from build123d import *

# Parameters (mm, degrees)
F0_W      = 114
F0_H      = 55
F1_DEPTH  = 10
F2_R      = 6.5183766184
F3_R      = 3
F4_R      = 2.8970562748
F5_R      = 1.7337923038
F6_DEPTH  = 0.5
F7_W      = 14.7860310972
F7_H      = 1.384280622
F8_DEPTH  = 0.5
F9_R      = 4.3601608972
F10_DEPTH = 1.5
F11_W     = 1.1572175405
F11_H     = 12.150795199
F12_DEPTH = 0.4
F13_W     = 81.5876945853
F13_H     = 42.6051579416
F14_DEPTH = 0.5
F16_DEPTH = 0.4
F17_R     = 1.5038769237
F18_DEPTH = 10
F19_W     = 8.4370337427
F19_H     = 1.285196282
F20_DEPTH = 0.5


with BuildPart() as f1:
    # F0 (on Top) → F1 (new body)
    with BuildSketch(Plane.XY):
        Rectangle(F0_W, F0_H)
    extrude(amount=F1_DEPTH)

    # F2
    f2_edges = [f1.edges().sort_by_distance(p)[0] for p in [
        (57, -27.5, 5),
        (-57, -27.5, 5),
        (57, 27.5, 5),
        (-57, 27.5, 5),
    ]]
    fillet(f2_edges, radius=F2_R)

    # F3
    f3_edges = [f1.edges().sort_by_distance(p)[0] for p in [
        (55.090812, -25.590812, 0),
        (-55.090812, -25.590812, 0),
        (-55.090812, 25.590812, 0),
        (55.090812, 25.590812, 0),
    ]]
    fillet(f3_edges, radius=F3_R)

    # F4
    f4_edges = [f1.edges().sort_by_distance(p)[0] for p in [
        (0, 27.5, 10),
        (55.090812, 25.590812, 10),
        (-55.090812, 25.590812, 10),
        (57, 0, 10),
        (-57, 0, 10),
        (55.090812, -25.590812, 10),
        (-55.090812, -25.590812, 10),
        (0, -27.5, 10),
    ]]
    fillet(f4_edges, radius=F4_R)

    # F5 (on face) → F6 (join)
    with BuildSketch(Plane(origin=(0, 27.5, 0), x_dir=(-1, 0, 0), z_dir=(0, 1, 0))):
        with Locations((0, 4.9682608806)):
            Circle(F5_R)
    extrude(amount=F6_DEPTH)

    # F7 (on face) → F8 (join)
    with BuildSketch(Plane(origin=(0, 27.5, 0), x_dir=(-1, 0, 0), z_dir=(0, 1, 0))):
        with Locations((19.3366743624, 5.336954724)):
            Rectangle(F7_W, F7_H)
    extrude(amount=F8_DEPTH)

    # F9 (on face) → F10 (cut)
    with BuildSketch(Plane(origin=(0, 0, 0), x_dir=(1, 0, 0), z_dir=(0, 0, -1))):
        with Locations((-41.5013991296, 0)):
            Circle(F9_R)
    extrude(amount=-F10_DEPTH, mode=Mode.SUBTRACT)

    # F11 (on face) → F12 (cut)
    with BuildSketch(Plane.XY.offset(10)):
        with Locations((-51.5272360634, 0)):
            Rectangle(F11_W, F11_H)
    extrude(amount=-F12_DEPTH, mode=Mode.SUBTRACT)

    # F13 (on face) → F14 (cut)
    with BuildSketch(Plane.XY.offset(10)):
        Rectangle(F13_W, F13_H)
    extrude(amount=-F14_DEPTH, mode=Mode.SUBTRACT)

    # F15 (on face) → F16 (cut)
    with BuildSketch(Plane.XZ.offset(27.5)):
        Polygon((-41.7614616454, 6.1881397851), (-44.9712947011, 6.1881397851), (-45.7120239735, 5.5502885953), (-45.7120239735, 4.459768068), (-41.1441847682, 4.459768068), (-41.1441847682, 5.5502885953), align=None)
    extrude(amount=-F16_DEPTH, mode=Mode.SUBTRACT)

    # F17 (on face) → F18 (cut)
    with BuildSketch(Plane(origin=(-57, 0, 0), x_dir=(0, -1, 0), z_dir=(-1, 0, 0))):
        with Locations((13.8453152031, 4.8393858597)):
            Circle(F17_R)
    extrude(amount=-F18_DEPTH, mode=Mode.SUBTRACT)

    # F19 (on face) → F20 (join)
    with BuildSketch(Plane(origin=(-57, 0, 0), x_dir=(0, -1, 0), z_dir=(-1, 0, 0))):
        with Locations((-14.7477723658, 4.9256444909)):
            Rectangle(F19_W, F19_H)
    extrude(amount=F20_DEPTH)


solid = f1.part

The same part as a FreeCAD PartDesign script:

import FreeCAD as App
import Part
import Sketcher

V = App.Vector
Q = App.Units.Quantity


def edges_at(feature, points):
    """Names of the edges that pass closest to the given points."""
    edges = feature.Shape.Edges
    near = lambda p: min(range(len(edges)), key=lambda i: edges[i].distToShape(Part.Vertex(*p))[0])
    return sorted({f"Edge{near(p) + 1}" for p in points})


def add_polygon(sketch, points):
    """Adds a closed chain of lines whose ends are joined by coincident constraints."""
    first, n = sketch.GeometryCount, len(points)
    for a, b in zip(points, points[1:] + points[:1]):
        sketch.addGeometry(Part.LineSegment(App.Vector(*a, 0), App.Vector(*b, 0)), False)
    for i in range(n):
        sketch.addConstraint(Sketcher.Constraint("Coincident", first + i, 2, first + (i + 1) % n, 1))

doc = App.newDocument("Part")
body = doc.addObject("PartDesign::Body", "Body")

sketch1 = body.newObject("Sketcher::SketchObject", "Sketch")
sketch1.AttachmentSupport = (doc.getObject("XY_Plane"), [""])
sketch1.MapMode = "FlatFace"
add_polygon(sketch1, [(-57, 28), (-57, -28), (57, -28), (57, 28)])
sketch1.addConstraint([
    Sketcher.Constraint("Vertical", 0),
    Sketcher.Constraint("Horizontal", 1),
    Sketcher.Constraint("Vertical", 2),
    Sketcher.Constraint("Horizontal", 3),
    Sketcher.Constraint("Symmetric", 0, 2, 2, 2, -1, 1),
    Sketcher.Constraint("DistanceX", 1, 1, 1, 2, Q("114 mm")),
    Sketcher.Constraint("DistanceY", 0, 2, 0, 1, Q("55 mm")),
])
pad1 = body.newObject("PartDesign::Pad", "Pad")
pad1.Profile = sketch1
pad1.Length = 10
doc.recompute()

fillet = body.newObject("PartDesign::Fillet", "Fillet")
fillet.Base = (pad1, edges_at(pad1, [
    (57, -27.5, 5),
    (-57, -27.5, 5),
    (57, 27.5, 5),
    (-57, 27.5, 5),
]))
fillet.Radius = 6.518377
doc.recompute()

fillet2 = body.newObject("PartDesign::Fillet", "Fillet001")
fillet2.Base = (fillet, edges_at(fillet, [
    (55.091, -25.591, 0),
    (-55.091, -25.591, 0),
    (-55.091, 25.591, 0),
    (55.091, 25.591, 0),
]))
fillet2.Radius = 3
doc.recompute()

fillet3 = body.newObject("PartDesign::Fillet", "Fillet002")
fillet3.Base = (fillet2, edges_at(fillet2, [
    (0, 27.5, 10),
    (55.091, 25.591, 10),
    (-55.091, 25.591, 10),
    (57, 0, 10),
    (-57, 0, 10),
    (55.091, -25.591, 10),
    (-55.091, -25.591, 10),
    (0, -27.5, 10),
]))
fillet3.Radius = 2.897056

sketch2 = body.newObject("Sketcher::SketchObject", "Sketch001")
sketch2.AttachmentSupport = (doc.getObject("XZ_Plane"), [""])
sketch2.MapMode = "FlatFace"
sketch2.AttachmentOffset = App.Placement(V(0, 0, -27.5), App.Rotation())
sketch2.addGeometry(Part.Circle(V(0, 5, 0), V(0, 0, 1), 1.7), False)
sketch2.addConstraint([
    Sketcher.Constraint("PointOnObject", 0, 3, -2),
    Sketcher.Constraint("Diameter", 0, Q("3.467585 mm")),
    Sketcher.Constraint("DistanceY", -1, 1, 0, 3, Q("4.968261 mm")),
])
pad2 = body.newObject("PartDesign::Pad", "Pad001")
pad2.Profile = sketch2
pad2.Length = 0.5
pad2.Reversed = True

sketch3 = body.newObject("Sketcher::SketchObject", "Sketch002")
sketch3.AttachmentSupport = (doc.getObject("XZ_Plane"), [""])
sketch3.MapMode = "FlatFace"
sketch3.AttachmentOffset = App.Placement(V(0, 0, -27.5), App.Rotation())
add_polygon(sketch3, [(-11.9, 6), (-11.9, 4.6), (-26.7, 4.6), (-26.7, 6)])
sketch3.addConstraint([
    Sketcher.Constraint("Vertical", 0),
    Sketcher.Constraint("Horizontal", 1),
    Sketcher.Constraint("Vertical", 2),
    Sketcher.Constraint("Horizontal", 3),
    Sketcher.Constraint("DistanceX", 1, 2, 1, 1, Q("14.786031 mm")),
    Sketcher.Constraint("DistanceY", 0, 2, 0, 1, Q("1.384281 mm")),
    Sketcher.Constraint("DistanceX", 0, 2, -1, 1, Q("11.943659 mm")),
    Sketcher.Constraint("DistanceY", -1, 1, 0, 2, Q("4.644814 mm")),
])
pad3 = body.newObject("PartDesign::Pad", "Pad002")
pad3.Profile = sketch3
pad3.Length = 0.5
pad3.Reversed = True

sketch4 = body.newObject("Sketcher::SketchObject", "Sketch003")
sketch4.AttachmentSupport = (doc.getObject("XY_Plane"), [""])
sketch4.MapMode = "FlatFace"
sketch4.addGeometry(Part.Circle(V(-41.5, 0, 0), V(0, 0, 1), 4.4), False)
sketch4.addConstraint([
    Sketcher.Constraint("PointOnObject", 0, 3, -1),
    Sketcher.Constraint("Diameter", 0, Q("8.720322 mm")),
    Sketcher.Constraint("DistanceX", 0, 3, -1, 1, Q("41.501399 mm")),
])
pocket1 = body.newObject("PartDesign::Pocket", "Pocket")
pocket1.Profile = sketch4
pocket1.Length = 1.5
pocket1.Reversed = True

sketch5 = body.newObject("Sketcher::SketchObject", "Sketch004")
sketch5.AttachmentSupport = (doc.getObject("XY_Plane"), [""])
sketch5.MapMode = "FlatFace"
sketch5.AttachmentOffset = App.Placement(V(0, 0, 10), App.Rotation())
add_polygon(sketch5, [(-52.1, 6.1), (-52.1, -6.1), (-50.9, -6.1), (-50.9, 6.1)])
sketch5.addConstraint([
    Sketcher.Constraint("Vertical", 0),
    Sketcher.Constraint("Horizontal", 1),
    Sketcher.Constraint("Vertical", 2),
    Sketcher.Constraint("Horizontal", 3),
    Sketcher.Constraint("DistanceX", 1, 1, 1, 2, Q("1.157218 mm")),
    Sketcher.Constraint("DistanceY", 0, 2, 0, 1, Q("12.150795 mm")),
    Sketcher.Constraint("DistanceX", 0, 2, -1, 1, Q("52.105845 mm")),
    Sketcher.Constraint("DistanceY", 0, 2, -1, 1, Q("6.075398 mm")),
])
pocket2 = body.newObject("PartDesign::Pocket", "Pocket001")
pocket2.Profile = sketch5
pocket2.Length = 0.4

sketch6 = body.newObject("Sketcher::SketchObject", "Sketch005")
sketch6.AttachmentSupport = (doc.getObject("XY_Plane"), [""])
sketch6.MapMode = "FlatFace"
sketch6.AttachmentOffset = App.Placement(V(0, 0, 10), App.Rotation())
add_polygon(sketch6, [(-41, 21), (-41, -21), (41, -21), (41, 21)])
sketch6.addConstraint([
    Sketcher.Constraint("Vertical", 0),
    Sketcher.Constraint("Horizontal", 1),
    Sketcher.Constraint("Vertical", 2),
    Sketcher.Constraint("Horizontal", 3),
    Sketcher.Constraint("Symmetric", 0, 2, 2, 2, -1, 1),
    Sketcher.Constraint("DistanceX", 1, 1, 1, 2, Q("81.587695 mm")),
    Sketcher.Constraint("DistanceY", 0, 2, 0, 1, Q("42.605158 mm")),
])
pocket3 = body.newObject("PartDesign::Pocket", "Pocket002")
pocket3.Profile = sketch6
pocket3.Length = 0.5

sketch7 = body.newObject("Sketcher::SketchObject", "Sketch006")
sketch7.AttachmentSupport = (doc.getObject("XZ_Plane"), [""])
sketch7.MapMode = "FlatFace"
sketch7.AttachmentOffset = App.Placement(V(0, 0, 27.5), App.Rotation())
add_polygon(sketch7, [(-41.8, 6.2), (-45, 6.2), (-45.7, 5.6), (-45.7, 4.5), (-41.1, 4.5), (-41.1, 5.6)])
sketch7.addConstraint([
    Sketcher.Constraint("Horizontal", 0),
    Sketcher.Constraint("Vertical", 2),
    Sketcher.Constraint("Horizontal", 3),
    Sketcher.Constraint("Vertical", 4),
    Sketcher.Constraint("Horizontal", 1, 2, 4, 2),
    Sketcher.Constraint("DistanceX", 3, 1, 3, 2, Q("4.567839 mm")),
    Sketcher.Constraint("DistanceY", 2, 2, 2, 1, Q("1.090521 mm")),
    Sketcher.Constraint("Distance", 5, Q("0.887629 mm")),
    Sketcher.Constraint("DistanceX", 0, 2, 0, 1, Q("3.209833 mm")),
    Sketcher.Constraint("DistanceY", -1, 1, 0, 2, Q("6.18814 mm")),
    Sketcher.Constraint("DistanceY", -1, 1, 1, 2, Q("5.550289 mm")),
    Sketcher.Constraint("DistanceX", 5, 2, -1, 1, Q("41.761462 mm")),
])
pocket4 = body.newObject("PartDesign::Pocket", "Pocket003")
pocket4.Profile = sketch7
pocket4.Length = 0.4

sketch8 = body.newObject("Sketcher::SketchObject", "Sketch007")
sketch8.AttachmentSupport = (doc.getObject("YZ_Plane"), [""])
sketch8.MapMode = "FlatFace"
sketch8.AttachmentOffset = App.Placement(V(0, 0, -57), App.Rotation())
sketch8.addGeometry(Part.Circle(V(-13.8, 4.8, 0), V(0, 0, 1), 1.5), False)
sketch8.addConstraint([
    Sketcher.Constraint("Diameter", 0, Q("3.007754 mm")),
    Sketcher.Constraint("DistanceX", 0, 3, -1, 1, Q("13.845315 mm")),
    Sketcher.Constraint("DistanceY", -1, 1, 0, 3, Q("4.839386 mm")),
])
pocket5 = body.newObject("PartDesign::Pocket", "Pocket004")
pocket5.Profile = sketch8
pocket5.Length = 10
pocket5.Reversed = True

sketch9 = body.newObject("Sketcher::SketchObject", "Sketch008")
sketch9.AttachmentSupport = (doc.getObject("YZ_Plane"), [""])
sketch9.MapMode = "FlatFace"
sketch9.AttachmentOffset = App.Placement(V(0, 0, -57), App.Rotation())
add_polygon(sketch9, [(19, 5.6), (19, 4.3), (10.5, 4.3), (10.5, 5.6)])
sketch9.addConstraint([
    Sketcher.Constraint("Vertical", 0),
    Sketcher.Constraint("Horizontal", 1),
    Sketcher.Constraint("Vertical", 2),
    Sketcher.Constraint("Horizontal", 3),
    Sketcher.Constraint("DistanceX", 1, 2, 1, 1, Q("8.437034 mm")),
    Sketcher.Constraint("DistanceY", 0, 2, 0, 1, Q("1.285196 mm")),
    Sketcher.Constraint("DistanceX", -1, 1, 0, 2, Q("18.966289 mm")),
    Sketcher.Constraint("DistanceY", -1, 1, 0, 2, Q("4.283046 mm")),
])
pad4 = body.newObject("PartDesign::Pad", "Pad003")
pad4.Profile = sketch9
pad4.Length = 0.5
pad4.Reversed = True

doc.recompute()
